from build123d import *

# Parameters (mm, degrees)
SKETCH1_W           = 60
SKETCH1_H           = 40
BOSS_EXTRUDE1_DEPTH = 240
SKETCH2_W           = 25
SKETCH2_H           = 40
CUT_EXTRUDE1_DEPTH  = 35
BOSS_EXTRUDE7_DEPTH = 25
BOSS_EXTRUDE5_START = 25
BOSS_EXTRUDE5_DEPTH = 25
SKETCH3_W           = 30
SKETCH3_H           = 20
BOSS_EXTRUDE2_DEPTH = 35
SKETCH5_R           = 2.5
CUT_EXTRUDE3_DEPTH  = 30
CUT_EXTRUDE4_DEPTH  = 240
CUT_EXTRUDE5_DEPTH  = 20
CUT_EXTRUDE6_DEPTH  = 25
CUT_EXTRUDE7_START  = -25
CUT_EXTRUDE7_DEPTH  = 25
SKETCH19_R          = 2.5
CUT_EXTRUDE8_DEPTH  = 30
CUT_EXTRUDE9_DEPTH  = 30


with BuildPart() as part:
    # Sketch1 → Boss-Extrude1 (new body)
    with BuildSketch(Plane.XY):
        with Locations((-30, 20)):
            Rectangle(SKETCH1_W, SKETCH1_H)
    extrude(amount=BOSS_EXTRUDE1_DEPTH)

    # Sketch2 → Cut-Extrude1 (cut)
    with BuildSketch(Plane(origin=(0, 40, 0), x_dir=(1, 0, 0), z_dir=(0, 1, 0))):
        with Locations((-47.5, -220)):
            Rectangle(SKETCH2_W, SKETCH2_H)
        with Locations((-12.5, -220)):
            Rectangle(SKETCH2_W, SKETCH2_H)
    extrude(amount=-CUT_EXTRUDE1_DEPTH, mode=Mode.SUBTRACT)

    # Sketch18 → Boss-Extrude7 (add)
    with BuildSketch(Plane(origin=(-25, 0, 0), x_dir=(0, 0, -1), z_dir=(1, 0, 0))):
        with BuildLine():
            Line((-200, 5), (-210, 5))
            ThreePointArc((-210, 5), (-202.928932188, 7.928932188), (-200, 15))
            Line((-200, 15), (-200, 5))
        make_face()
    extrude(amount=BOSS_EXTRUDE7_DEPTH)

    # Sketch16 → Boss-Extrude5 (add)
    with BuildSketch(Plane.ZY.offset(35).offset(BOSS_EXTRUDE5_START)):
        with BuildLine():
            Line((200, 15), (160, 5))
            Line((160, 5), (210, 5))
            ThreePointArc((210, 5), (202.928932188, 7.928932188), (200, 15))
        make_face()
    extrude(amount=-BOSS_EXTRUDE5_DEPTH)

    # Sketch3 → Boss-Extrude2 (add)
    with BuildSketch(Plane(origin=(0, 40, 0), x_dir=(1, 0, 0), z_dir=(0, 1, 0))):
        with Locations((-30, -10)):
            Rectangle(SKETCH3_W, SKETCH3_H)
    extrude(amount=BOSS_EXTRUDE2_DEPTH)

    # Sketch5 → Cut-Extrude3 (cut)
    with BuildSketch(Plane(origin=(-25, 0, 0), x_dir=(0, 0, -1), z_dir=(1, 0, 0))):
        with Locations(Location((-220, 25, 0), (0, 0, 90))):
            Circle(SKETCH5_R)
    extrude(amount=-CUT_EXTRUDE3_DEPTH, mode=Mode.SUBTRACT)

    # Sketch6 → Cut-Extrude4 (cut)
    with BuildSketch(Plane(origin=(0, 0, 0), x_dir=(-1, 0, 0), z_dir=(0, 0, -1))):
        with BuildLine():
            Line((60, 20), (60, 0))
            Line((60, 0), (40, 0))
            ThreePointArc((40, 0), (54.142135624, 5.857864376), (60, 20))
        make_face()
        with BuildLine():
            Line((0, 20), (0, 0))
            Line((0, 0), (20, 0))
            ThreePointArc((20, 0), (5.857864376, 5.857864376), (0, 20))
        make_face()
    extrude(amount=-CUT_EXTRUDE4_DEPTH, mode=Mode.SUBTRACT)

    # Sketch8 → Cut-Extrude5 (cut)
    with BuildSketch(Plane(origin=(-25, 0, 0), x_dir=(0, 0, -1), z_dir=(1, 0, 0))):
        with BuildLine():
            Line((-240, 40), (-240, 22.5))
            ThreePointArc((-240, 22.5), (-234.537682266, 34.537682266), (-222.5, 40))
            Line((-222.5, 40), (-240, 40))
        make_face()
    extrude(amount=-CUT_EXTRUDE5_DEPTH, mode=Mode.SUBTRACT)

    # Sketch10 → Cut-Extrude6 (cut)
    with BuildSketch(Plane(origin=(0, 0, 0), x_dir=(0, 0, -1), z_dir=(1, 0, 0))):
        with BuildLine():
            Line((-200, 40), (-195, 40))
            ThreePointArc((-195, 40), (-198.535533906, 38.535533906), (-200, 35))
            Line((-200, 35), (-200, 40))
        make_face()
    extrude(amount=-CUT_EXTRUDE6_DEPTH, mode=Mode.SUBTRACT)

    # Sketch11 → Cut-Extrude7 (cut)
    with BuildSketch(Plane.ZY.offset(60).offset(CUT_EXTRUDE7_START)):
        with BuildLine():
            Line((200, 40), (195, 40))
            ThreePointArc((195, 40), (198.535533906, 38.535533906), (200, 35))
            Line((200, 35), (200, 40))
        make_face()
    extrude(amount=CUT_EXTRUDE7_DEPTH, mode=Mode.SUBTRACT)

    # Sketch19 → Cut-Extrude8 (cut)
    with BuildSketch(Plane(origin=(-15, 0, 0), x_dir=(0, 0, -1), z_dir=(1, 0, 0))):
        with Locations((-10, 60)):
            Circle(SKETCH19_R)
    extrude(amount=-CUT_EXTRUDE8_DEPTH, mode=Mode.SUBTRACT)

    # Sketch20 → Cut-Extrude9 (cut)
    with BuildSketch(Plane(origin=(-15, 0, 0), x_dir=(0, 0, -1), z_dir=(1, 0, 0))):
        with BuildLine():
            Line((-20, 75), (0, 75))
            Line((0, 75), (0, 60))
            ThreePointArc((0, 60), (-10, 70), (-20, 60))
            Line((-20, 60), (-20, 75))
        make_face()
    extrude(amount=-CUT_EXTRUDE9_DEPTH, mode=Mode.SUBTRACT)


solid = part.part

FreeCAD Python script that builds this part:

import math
import FreeCAD as App
import Part
import Sketcher
from FreeCAD import Vector

doc = App.newDocument("Part")
params = doc.addObject("Spreadsheet::Sheet", "Params")
for row, (alias, value) in enumerate([
    ("sketch1_width", "60 mm"),
    ("sketch1_height", "40 mm"),
    ("pad1_length", "240 mm"),
    ("sketch2_width", "25 mm"),
    ("sketch2_height", "40 mm"),
    ("pocket1_length", "35 mm"),
    ("sketch3_radius", "10 mm"),
    ("pad2_length", "25 mm"),
    ("sketch4_radius", "10 mm"),
    ("sketch4_height", "50 mm"),
    ("pad3_length", "25 mm"),
    ("sketch5_width", "30 mm"),
    ("sketch5_height", "20 mm"),
    ("pad4_length", "35 mm"),
    ("sketch6_diameter", "5 mm"),
    ("pocket2_length", "30 mm"),
    ("sketch7_radius", "20 mm"),
    ("pocket3_length", "240 mm"),
    ("sketch8_width", "17.5 mm"),
    ("pocket4_length", "20 mm"),
    ("sketch9_radius", "5 mm"),
    ("pocket5_length", "25 mm"),
    ("sketch10_radius", "5 mm"),
    ("pocket6_length", "25 mm"),
    ("sketch11_diameter", "5 mm"),
    ("pocket7_length", "30 mm"),
    ("sketch12_radius", "10 mm"),
    ("sketch12_width", "15 mm"),
    ("pocket8_length", "30 mm"),
], start=1):
    params.set(f"A{row}", alias)
    params.set(f"B{row}", "=" + value)
    params.setAlias(f"B{row}", alias)

body = doc.addObject("PartDesign::Body", "Body")

sketch1 = doc.addObject("Sketcher::SketchObject", "Sketch")
body.addObject(sketch1)
sketch1.AttachmentSupport = (doc.XY_Plane, [""])
sketch1.MapMode = "FlatFace"
sketch1.addGeometry(Part.LineSegment(Vector(-60, 40, 0), Vector(-60, 0, 0)), False)
sketch1.addGeometry(Part.LineSegment(Vector(-60, 0, 0), Vector(0, 0, 0)), False)
sketch1.addGeometry(Part.LineSegment(Vector(0, 0, 0), Vector(0, 40, 0)), False)
sketch1.addGeometry(Part.LineSegment(Vector(0, 40, 0), Vector(-60, 40, 0)), False)
sketch1.addConstraint(Sketcher.Constraint("Coincident", 0, 2, 1, 1))
sketch1.addConstraint(Sketcher.Constraint("Coincident", 1, 2, 2, 1))
sketch1.addConstraint(Sketcher.Constraint("Coincident", 2, 2, 3, 1))
sketch1.addConstraint(Sketcher.Constraint("Coincident", 3, 2, 0, 1))
sketch1.addConstraint(Sketcher.Constraint("Vertical", 0))
sketch1.addConstraint(Sketcher.Constraint("Horizontal", 1))
sketch1.addConstraint(Sketcher.Constraint("Vertical", 2))
sketch1.addConstraint(Sketcher.Constraint("Horizontal", 3))
sketch1.addConstraint(Sketcher.Constraint("Coincident", 1, 2, -1, 1))
sketch1.addConstraint(Sketcher.Constraint("DistanceX", 1, 1, 1, 2, 60.0))
sketch1.addConstraint(Sketcher.Constraint("DistanceY", 0, 2, 0, 1, 40.0))
sketch1.setExpression("Constraints[9]", "Params.sketch1_width")
sketch1.setExpression("Constraints[10]", "Params.sketch1_height")
pad1 = doc.addObject("PartDesign::Pad", "Pad")
body.addObject(pad1)
pad1.Profile = sketch1
pad1.setExpression("Length", "Params.pad1_length")

sketch2 = doc.addObject("Sketcher::SketchObject", "Sketch001")
body.addObject(sketch2)
sketch2.AttachmentSupport = (doc.XZ_Plane, [""])
sketch2.MapMode = "FlatFace"
sketch2.AttachmentOffset = App.Placement(Vector(0, 0, -40), App.Rotation())
sketch2.addGeometry(Part.LineSegment(Vector(-60, 200, 0), Vector(-60, 240, 0)), False)
sketch2.addGeometry(Part.LineSegment(Vector(-60, 240, 0), Vector(-35, 240, 0)), False)
sketch2.addGeometry(Part.LineSegment(Vector(-35, 240, 0), Vector(-35, 200, 0)), False)
sketch2.addGeometry(Part.LineSegment(Vector(-35, 200, 0), Vector(-60, 200, 0)), False)
sketch2.addGeometry(Part.LineSegment(Vector(-25, 200, 0), Vector(-25, 240, 0)), False)
sketch2.addGeometry(Part.LineSegment(Vector(-25, 240, 0), Vector(0, 240, 0)), False)
sketch2.addGeometry(Part.LineSegment(Vector(0, 240, 0), Vector(0, 200, 0)), False)
sketch2.addGeometry(Part.LineSegment(Vector(0, 200, 0), Vector(-25, 200, 0)), False)
sketch2.addConstraint(Sketcher.Constraint("Coincident", 0, 2, 1, 1))
sketch2.addConstraint(Sketcher.Constraint("Coincident", 1, 2, 2, 1))
sketch2.addConstraint(Sketcher.Constraint("Coincident", 2, 2, 3, 1))
sketch2.addConstraint(Sketcher.Constraint("Coincident", 3, 2, 0, 1))
sketch2.addConstraint(Sketcher.Constraint("Coincident", 4, 2, 5, 1))
sketch2.addConstraint(Sketcher.Constraint("Coincident", 5, 2, 6, 1))
sketch2.addConstraint(Sketcher.Constraint("Coincident", 6, 2, 7, 1))
sketch2.addConstraint(Sketcher.Constraint("Coincident", 7, 2, 4, 1))
sketch2.addConstraint(Sketcher.Constraint("Vertical", 0))
sketch2.addConstraint(Sketcher.Constraint("Horizontal", 1))
sketch2.addConstraint(Sketcher.Constraint("Vertical", 2))
sketch2.addConstraint(Sketcher.Constraint("Horizontal", 3))
sketch2.addConstraint(Sketcher.Constraint("Vertical", 4))
sketch2.addConstraint(Sketcher.Constraint("Horizontal", 5))
sketch2.addConstraint(Sketcher.Constraint("Vertical", 6))
sketch2.addConstraint(Sketcher.Constraint("Horizontal", 7))
sketch2.addConstraint(Sketcher.Constraint("PointOnObject", 5, 2, -2))
sketch2.addConstraint(Sketcher.Constraint("Horizontal", 1, 2, 4, 2))
sketch2.addConstraint(Sketcher.Constraint("Horizontal", 3, 2, 6, 2))
sketch2.addConstraint(Sketcher.Constraint("Equal", 3, 5))
sketch2.addConstraint(Sketcher.Constraint("DistanceX", 1, 1, 1, 2, 25.0))
sketch2.addConstraint(Sketcher.Constraint("DistanceY", 0, 1, 0, 2, 40.0))
sketch2.addConstraint(Sketcher.Constraint("DistanceX", 0, 2, -1, 1, 60.0))
sketch2.addConstraint(Sketcher.Constraint("DistanceY", -1, 1, 0, 2, 240.0))
sketch2.setExpression("Constraints[20]", "Params.sketch2_width")
sketch2.setExpression("Constraints[21]", "Params.sketch2_height")
pocket1 = doc.addObject("PartDesign::Pocket", "Pocket")
body.addObject(pocket1)
pocket1.Profile = sketch2
pocket1.setExpression("Length", "Params.pocket1_length")
pocket1.Reversed = True

sketch3 = doc.addObject("Sketcher::SketchObject", "Sketch002")
body.addObject(sketch3)
sketch3.AttachmentSupport = (doc.YZ_Plane, [""])
sketch3.MapMode = "FlatFace"
sketch3.AttachmentOffset = App.Placement(Vector(0, 0, -25), App.Rotation())
sketch3.addGeometry(Part.LineSegment(Vector(5, 210, 0), Vector(5, 200, 0)), False)
sketch3.addGeometry(Part.LineSegment(Vector(5, 200, 0), Vector(15, 200, 0)), False)
sketch3.addGeometry(Part.ArcOfCircle(Part.Circle(Vector(15, 210, 0), Vector(0, 0, 1), 10), math.radians(180), math.radians(270)), False)
sketch3.addConstraint(Sketcher.Constraint("Coincident", 0, 2, 1, 1))
sketch3.addConstraint(Sketcher.Constraint("Tangent", 1, 2, 2, 2))
sketch3.addConstraint(Sketcher.Constraint("Tangent", 2, 1, 0, 1))
sketch3.addConstraint(Sketcher.Constraint("Vertical", 0))
sketch3.addConstraint(Sketcher.Constraint("Horizontal", 1))
sketch3.addConstraint(Sketcher.Constraint("Radius", 2, 10.0))
sketch3.addConstraint(Sketcher.Constraint("DistanceX", -1, 1, 2, 3, 15.0))
sketch3.addConstraint(Sketcher.Constraint("DistanceY", -1, 1, 2, 3, 210.0))
sketch3.setExpression("Constraints[5]", "Params.sketch3_radius")
pad2 = doc.addObject("PartDesign::Pad", "Pad001")
body.addObject(pad2)
pad2.Profile = sketch3
pad2.setExpression("Length", "Params.pad2_length")

sketch4 = doc.addObject("Sketcher::SketchObject", "Sketch003")
body.addObject(sketch4)
sketch4.AttachmentSupport = (doc.YZ_Plane, [""])
sketch4.MapMode = "FlatFace"
sketch4.AttachmentOffset = App.Placement(Vector(0, 0, -60), App.Rotation())
sketch4.addGeometry(Part.LineSegment(Vector(15, 200, 0), Vector(5, 160, 0)), False)
sketch4.addGeometry(Part.LineSegment(Vector(5, 160, 0), Vector(5, 210, 0)), False)
sketch4.addGeometry(Part.ArcOfCircle(Part.Circle(Vector(15, 210, 0), Vector(0, 0, 1), 10), math.radians(180), math.radians(270)), False)
sketch4.addConstraint(Sketcher.Constraint("Coincident", 0, 2, 1, 1))
sketch4.addConstraint(Sketcher.Constraint("Tangent", 1, 2, 2, 1))
sketch4.addConstraint(Sketcher.Constraint("Coincident", 2, 2, 0, 1))
sketch4.addConstraint(Sketcher.Constraint("Vertical", 1))
sketch4.addConstraint(Sketcher.Constraint("Radius", 2, 10.0))
sketch4.addConstraint(Sketcher.Constraint("DistanceY", 1, 1, 1, 2, 50.0))
sketch4.addConstraint(Sketcher.Constraint("DistanceX", -1, 1, 2, 3, 15.0))
sketch4.addConstraint(Sketcher.Constraint("DistanceY", -1, 1, 2, 3, 210.0))
sketch4.addConstraint(Sketcher.Constraint("DistanceX", -1, 1, 2, 2, 15.0))
sketch4.setExpression("Constraints[4]", "Params.sketch4_radius")
sketch4.setExpression("Constraints[5]", "Params.sketch4_height")
pad3 = doc.addObject("PartDesign::Pad", "Pad002")
body.addObject(pad3)
pad3.Profile = sketch4
pad3.setExpression("Length", "Params.pad3_length")

sketch5 = doc.addObject("Sketcher::SketchObject", "Sketch004")
body.addObject(sketch5)
sketch5.AttachmentSupport = (doc.XZ_Plane, [""])
sketch5.MapMode = "FlatFace"
sketch5.AttachmentOffset = App.Placement(Vector(0, 0, -40), App.Rotation())
sketch5.addGeometry(Part.LineSegment(Vector(-45, 0, 0), Vector(-45, 20, 0)), False)
sketch5.addGeometry(Part.LineSegment(Vector(-45, 20, 0), Vector(-15, 20, 0)), False)
sketch5.addGeometry(Part.LineSegment(Vector(-15, 20, 0), Vector(-15, 0, 0)), False)
sketch5.addGeometry(Part.LineSegment(Vector(-15, 0, 0), Vector(-45, 0, 0)), False)
sketch5.addConstraint(Sketcher.Constraint("Coincident", 0, 2, 1, 1))
sketch5.addConstraint(Sketcher.Constraint("Coincident", 1, 2, 2, 1))
sketch5.addConstraint(Sketcher.Constraint("Coincident", 2, 2, 3, 1))
sketch5.addConstraint(Sketcher.Constraint("Coincident", 3, 2, 0, 1))
sketch5.addConstraint(Sketcher.Constraint("Vertical", 0))
sketch5.addConstraint(Sketcher.Constraint("Horizontal", 1))
sketch5.addConstraint(Sketcher.Constraint("Vertical", 2))
sketch5.addConstraint(Sketcher.Constraint("Horizontal", 3))
sketch5.addConstraint(Sketcher.Constraint("PointOnObject", 2, 2, -1))
sketch5.addConstraint(Sketcher.Constraint("DistanceX", 1, 1, 1, 2, 30.0))
sketch5.addConstraint(Sketcher.Constraint("DistanceY", 0, 1, 0, 2, 20.0))
sketch5.addConstraint(Sketcher.Constraint("DistanceX", 0, 2, -1, 1, 45.0))
sketch5.setExpression("Constraints[9]", "Params.sketch5_width")
sketch5.setExpression("Constraints[10]", "Params.sketch5_height")
pad4 = doc.addObject("PartDesign::Pad", "Pad003")
body.addObject(pad4)
pad4.Profile = sketch5
pad4.setExpression("Length", "Params.pad4_length")
pad4.Reversed = True

sketch6 = doc.addObject("Sketcher::SketchObject", "Sketch005")
body.addObject(sketch6)
sketch6.AttachmentSupport = (doc.YZ_Plane, [""])
sketch6.MapMode = "FlatFace"
sketch6.AttachmentOffset = App.Placement(Vector(0, 0, -25), App.Rotation())
sketch6.addGeometry(Part.Circle(Vector(25, 220, 0), Vector(0, 0, 1), 2.5), False)
sketch6.addConstraint(Sketcher.Constraint("Diameter", 0, 5.0))
sketch6.addConstraint(Sketcher.Constraint("DistanceX", -1, 1, 0, 3, 25.0))
sketch6.addConstraint(Sketcher.Constraint("DistanceY", -1, 1, 0, 3, 220.0))
sketch6.setExpression("Constraints[0]", "Params.sketch6_diameter")
pocket2 = doc.addObject("PartDesign::Pocket", "Pocket001")
body.addObject(pocket2)
pocket2.Profile = sketch6
pocket2.setExpression("Length", "Params.pocket2_length")

sketch7 = doc.addObject("Sketcher::SketchObject", "Sketch006")
body.addObject(sketch7)
sketch7.AttachmentSupport = (doc.XY_Plane, [""])
sketch7.MapMode = "FlatFace"
sketch7.addGeometry(Part.LineSegment(Vector(-60, 0, 0), Vector(-60, 20, 0)), False)
sketch7.addGeometry(Part.ArcOfCircle(Part.Circle(Vector(-40, 20, 0), Vector(0, 0, 1), 20), math.radians(180), math.radians(270)), False)
sketch7.addGeometry(Part.LineSegment(Vector(-40, 0, 0), Vector(-60, 0, 0)), False)
sketch7.addGeometry(Part.LineSegment(Vector(0, 20, 0), Vector(0, 0, 0)), False)
sketch7.addGeometry(Part.LineSegment(Vector(0, 0, 0), Vector(-20, 0, 0)), False)
sketch7.addGeometry(Part.ArcOfCircle(Part.Circle(Vector(-20, 20, 0), Vector(0, 0, 1), 20), math.radians(-90), math.radians(0)), False)
sketch7.addConstraint(Sketcher.Constraint("Tangent", 0, 2, 1, 1))
sketch7.addConstraint(Sketcher.Constraint("Tangent", 1, 2, 2, 1))
sketch7.addConstraint(Sketcher.Constraint("Coincident", 2, 2, 0, 1))
sketch7.addConstraint(Sketcher.Constraint("Coincident", 3, 2, 4, 1))
sketch7.addConstraint(Sketcher.Constraint("Tangent", 4, 2, 5, 1))
sketch7.addConstraint(Sketcher.Constraint("Tangent", 5, 2, 3, 1))
sketch7.addConstraint(Sketcher.Constraint("Vertical", 0))
sketch7.addConstraint(Sketcher.Constraint("Horizontal", 2))
sketch7.addConstraint(Sketcher.Constraint("Vertical", 3))
sketch7.addConstraint(Sketcher.Constraint("Horizontal", 4))
sketch7.addConstraint(Sketcher.Constraint("Coincident", 3, 2, -1, 1))
sketch7.addConstraint(Sketcher.Constraint("Equal", 1, 5))
sketch7.addConstraint(Sketcher.Constraint("PointOnObject", 1, 2, -1))
sketch7.addConstraint(Sketcher.Constraint("Radius", 1, 20.0))
sketch7.addConstraint(Sketcher.Constraint("DistanceX", 1, 3, -1, 1, 40.0))
sketch7.setExpression("Constraints[13]", "Params.sketch7_radius")
pocket3 = doc.addObject("PartDesign::Pocket", "Pocket002")
body.addObject(pocket3)
pocket3.Profile = sketch7
pocket3.setExpression("Length", "Params.pocket3_length")
pocket3.Reversed = True

sketch8 = doc.addObject("Sketcher::SketchObject", "Sketch007")
body.addObject(sketch8)
sketch8.AttachmentSupport = (doc.YZ_Plane, [""])
sketch8.MapMode = "FlatFace"
sketch8.AttachmentOffset = App.Placement(Vector(0, 0, -25), App.Rotation())
sketch8.addGeometry(Part.LineSegment(Vector(40, 240, 0), Vector(22, 240, 0)), False)
sketch8.addGeometry(Part.ArcOfCircle(Part.Circle(Vector(21, 221, 0), Vector(0, 0, 1), 19), math.radians(4), math.radians(86)), False)
sketch8.addGeometry(Part.LineSegment(Vector(40, 222, 0), Vector(40, 240, 0)), False)
sketch8.addConstraint(Sketcher.Constraint("Coincident", 0, 2, 1, 2))
sketch8.addConstraint(Sketcher.Constraint("Coincident", 1, 1, 2, 1))
sketch8.addConstraint(Sketcher.Constraint("Coincident", 2, 2, 0, 1))
sketch8.addConstraint(Sketcher.Constraint("Horizontal", 0))
sketch8.addConstraint(Sketcher.Constraint("Vertical", 2))
sketch8.addConstraint(Sketcher.Constraint("Equal", 0, 2))
sketch8.addConstraint(Sketcher.Constraint("DistanceX", 0, 2, 0, 1, 17.5))
sketch8.addConstraint(Sketcher.Constraint("DistanceY", -1, 1, 0, 2, 240.0))
sketch8.addConstraint(Sketcher.Constraint("DistanceX", -1, 1, 1, 1, 40.0))
sketch8.addConstraint(Sketcher.Constraint("DistanceX", -1, 1, 1, 3, 21.25))
sketch8.setExpression("Constraints[6]", "Params.sketch8_width")
pocket4 = doc.addObject("PartDesign::Pocket", "Pocket003")
body.addObject(pocket4)
pocket4.Profile = sketch8
pocket4.setExpression("Length", "Params.pocket4_length")

sketch9 = doc.addObject("Sketcher::SketchObject", "Sketch008")
body.addObject(sketch9)
sketch9.AttachmentSupport = (doc.YZ_Plane, [""])
sketch9.MapMode = "FlatFace"
sketch9.addGeometry(Part.LineSegment(Vector(40, 195, 0), Vector(40, 200, 0)), False)
sketch9.addGeometry(Part.LineSegment(Vector(40, 200, 0), Vector(35, 200, 0)), False)
sketch9.addGeometry(Part.ArcOfCircle(Part.Circle(Vector(35, 195, 0), Vector(0, 0, 1), 5), math.radians(0), math.radians(90)), False)
sketch9.addConstraint(Sketcher.Constraint("Coincident", 0, 2, 1, 1))
sketch9.addConstraint(Sketcher.Constraint("Tangent", 1, 2, 2, 2))
sketch9.addConstraint(Sketcher.Constraint("Tangent", 2, 1, 0, 1))
sketch9.addConstraint(Sketcher.Constraint("Vertical", 0))
sketch9.addConstraint(Sketcher.Constraint("Horizontal", 1))
sketch9.addConstraint(Sketcher.Constraint("Radius", 2, 5.0))
sketch9.addConstraint(Sketcher.Constraint("DistanceX", -1, 1, 2, 3, 35.0))
sketch9.addConstraint(Sketcher.Constraint("DistanceY", -1, 1, 2, 3, 195.0))
sketch9.setExpression("Constraints[5]", "Params.sketch9_radius")
pocket5 = doc.addObject("PartDesign::Pocket", "Pocket004")
body.addObject(pocket5)
pocket5.Profile = sketch9
pocket5.setExpression("Length", "Params.pocket5_length")

sketch10 = doc.addObject("Sketcher::SketchObject", "Sketch009")
body.addObject(sketch10)
sketch10.AttachmentSupport = (doc.YZ_Plane, [""])
sketch10.MapMode = "FlatFace"
sketch10.AttachmentOffset = App.Placement(Vector(0, 0, -35), App.Rotation())
sketch10.addGeometry(Part.LineSegment(Vector(40, 200, 0), Vector(40, 195, 0)), False)
sketch10.addGeometry(Part.ArcOfCircle(Part.Circle(Vector(35, 195, 0), Vector(0, 0, 1), 5), math.radians(0), math.radians(90)), False)
sketch10.addGeometry(Part.LineSegment(Vector(35, 200, 0), Vector(40, 200, 0)), False)
sketch10.addConstraint(Sketcher.Constraint("Tangent", 0, 2, 1, 1))
sketch10.addConstraint(Sketcher.Constraint("Tangent", 1, 2, 2, 1))
sketch10.addConstraint(Sketcher.Constraint("Coincident", 2, 2, 0, 1))
sketch10.addConstraint(Sketcher.Constraint("Vertical", 0))
sketch10.addConstraint(Sketcher.Constraint("Horizontal", 2))
sketch10.addConstraint(Sketcher.Constraint("Radius", 1, 5.0))
sketch10.addConstraint(Sketcher.Constraint("DistanceX", -1, 1, 1, 3, 35.0))
sketch10.addConstraint(Sketcher.Constraint("DistanceY", -1, 1, 1, 3, 195.0))
sketch10.setExpression("Constraints[5]", "Params.sketch10_radius")
pocket6 = doc.addObject("PartDesign::Pocket", "Pocket005")
body.addObject(pocket6)
pocket6.Profile = sketch10
pocket6.setExpression("Length", "Params.pocket6_length")

sketch11 = doc.addObject("Sketcher::SketchObject", "Sketch010")
body.addObject(sketch11)
sketch11.AttachmentSupport = (doc.YZ_Plane, [""])
sketch11.MapMode = "FlatFace"
sketch11.AttachmentOffset = App.Placement(Vector(0, 0, -15), App.Rotation())
sketch11.addGeometry(Part.Circle(Vector(60, 10, 0), Vector(0, 0, 1), 2.5), False)
sketch11.addConstraint(Sketcher.Constraint("Diameter", 0, 5.0))
sketch11.addConstraint(Sketcher.Constraint("DistanceX", -1, 1, 0, 3, 60.0))
sketch11.addConstraint(Sketcher.Constraint("DistanceY", -1, 1, 0, 3, 10.0))
sketch11.setExpression("Constraints[0]", "Params.sketch11_diameter")
pocket7 = doc.addObject("PartDesign::Pocket", "Pocket006")
body.addObject(pocket7)
pocket7.Profile = sketch11
pocket7.setExpression("Length", "Params.pocket7_length")

sketch12 = doc.addObject("Sketcher::SketchObject", "Sketch011")
body.addObject(sketch12)
sketch12.AttachmentSupport = (doc.YZ_Plane, [""])
sketch12.MapMode = "FlatFace"
sketch12.AttachmentOffset = App.Placement(Vector(0, 0, -15), App.Rotation())
sketch12.addGeometry(Part.LineSegment(Vector(75, 0, 0), Vector(75, 20, 0)), False)
sketch12.addGeometry(Part.LineSegment(Vector(75, 20, 0), Vector(60, 20, 0)), False)
sketch12.addGeometry(Part.ArcOfCircle(Part.Circle(Vector(60, 10, 0), Vector(0, 0, 1), 10), math.radians(-90), math.radians(90)), False)
sketch12.addGeometry(Part.LineSegment(Vector(60, 0, 0), Vector(75, 0, 0)), False)
sketch12.addConstraint(Sketcher.Constraint("Coincident", 0, 2, 1, 1))
sketch12.addConstraint(Sketcher.Constraint("Tangent", 1, 2, 2, 2))
sketch12.addConstraint(Sketcher.Constraint("Tangent", 2, 1, 3, 1))
sketch12.addConstraint(Sketcher.Constraint("Coincident", 3, 2, 0, 1))
sketch12.addConstraint(Sketcher.Constraint("Vertical", 0))
sketch12.addConstraint(Sketcher.Constraint("Horizontal", 1))
sketch12.addConstraint(Sketcher.Constraint("Horizontal", 3))
sketch12.addConstraint(Sketcher.Constraint("PointOnObject", 2, 1, -1))
sketch12.addConstraint(Sketcher.Constraint("Radius", 2, 10.0))
sketch12.addConstraint(Sketcher.Constraint("DistanceX", 1, 2, 1, 1, 15.0))
sketch12.addConstraint(Sketcher.Constraint("DistanceX", -1, 1, 2, 3, 60.0))
sketch12.setExpression("Constraints[8]", "Params.sketch12_radius")
sketch12.setExpression("Constraints[9]", "Params.sketch12_width")
pocket8 = doc.addObject("PartDesign::Pocket", "Pocket007")
body.addObject(pocket8)
pocket8.Profile = sketch12
pocket8.setExpression("Length", "Params.pocket8_length")

doc.recompute()
